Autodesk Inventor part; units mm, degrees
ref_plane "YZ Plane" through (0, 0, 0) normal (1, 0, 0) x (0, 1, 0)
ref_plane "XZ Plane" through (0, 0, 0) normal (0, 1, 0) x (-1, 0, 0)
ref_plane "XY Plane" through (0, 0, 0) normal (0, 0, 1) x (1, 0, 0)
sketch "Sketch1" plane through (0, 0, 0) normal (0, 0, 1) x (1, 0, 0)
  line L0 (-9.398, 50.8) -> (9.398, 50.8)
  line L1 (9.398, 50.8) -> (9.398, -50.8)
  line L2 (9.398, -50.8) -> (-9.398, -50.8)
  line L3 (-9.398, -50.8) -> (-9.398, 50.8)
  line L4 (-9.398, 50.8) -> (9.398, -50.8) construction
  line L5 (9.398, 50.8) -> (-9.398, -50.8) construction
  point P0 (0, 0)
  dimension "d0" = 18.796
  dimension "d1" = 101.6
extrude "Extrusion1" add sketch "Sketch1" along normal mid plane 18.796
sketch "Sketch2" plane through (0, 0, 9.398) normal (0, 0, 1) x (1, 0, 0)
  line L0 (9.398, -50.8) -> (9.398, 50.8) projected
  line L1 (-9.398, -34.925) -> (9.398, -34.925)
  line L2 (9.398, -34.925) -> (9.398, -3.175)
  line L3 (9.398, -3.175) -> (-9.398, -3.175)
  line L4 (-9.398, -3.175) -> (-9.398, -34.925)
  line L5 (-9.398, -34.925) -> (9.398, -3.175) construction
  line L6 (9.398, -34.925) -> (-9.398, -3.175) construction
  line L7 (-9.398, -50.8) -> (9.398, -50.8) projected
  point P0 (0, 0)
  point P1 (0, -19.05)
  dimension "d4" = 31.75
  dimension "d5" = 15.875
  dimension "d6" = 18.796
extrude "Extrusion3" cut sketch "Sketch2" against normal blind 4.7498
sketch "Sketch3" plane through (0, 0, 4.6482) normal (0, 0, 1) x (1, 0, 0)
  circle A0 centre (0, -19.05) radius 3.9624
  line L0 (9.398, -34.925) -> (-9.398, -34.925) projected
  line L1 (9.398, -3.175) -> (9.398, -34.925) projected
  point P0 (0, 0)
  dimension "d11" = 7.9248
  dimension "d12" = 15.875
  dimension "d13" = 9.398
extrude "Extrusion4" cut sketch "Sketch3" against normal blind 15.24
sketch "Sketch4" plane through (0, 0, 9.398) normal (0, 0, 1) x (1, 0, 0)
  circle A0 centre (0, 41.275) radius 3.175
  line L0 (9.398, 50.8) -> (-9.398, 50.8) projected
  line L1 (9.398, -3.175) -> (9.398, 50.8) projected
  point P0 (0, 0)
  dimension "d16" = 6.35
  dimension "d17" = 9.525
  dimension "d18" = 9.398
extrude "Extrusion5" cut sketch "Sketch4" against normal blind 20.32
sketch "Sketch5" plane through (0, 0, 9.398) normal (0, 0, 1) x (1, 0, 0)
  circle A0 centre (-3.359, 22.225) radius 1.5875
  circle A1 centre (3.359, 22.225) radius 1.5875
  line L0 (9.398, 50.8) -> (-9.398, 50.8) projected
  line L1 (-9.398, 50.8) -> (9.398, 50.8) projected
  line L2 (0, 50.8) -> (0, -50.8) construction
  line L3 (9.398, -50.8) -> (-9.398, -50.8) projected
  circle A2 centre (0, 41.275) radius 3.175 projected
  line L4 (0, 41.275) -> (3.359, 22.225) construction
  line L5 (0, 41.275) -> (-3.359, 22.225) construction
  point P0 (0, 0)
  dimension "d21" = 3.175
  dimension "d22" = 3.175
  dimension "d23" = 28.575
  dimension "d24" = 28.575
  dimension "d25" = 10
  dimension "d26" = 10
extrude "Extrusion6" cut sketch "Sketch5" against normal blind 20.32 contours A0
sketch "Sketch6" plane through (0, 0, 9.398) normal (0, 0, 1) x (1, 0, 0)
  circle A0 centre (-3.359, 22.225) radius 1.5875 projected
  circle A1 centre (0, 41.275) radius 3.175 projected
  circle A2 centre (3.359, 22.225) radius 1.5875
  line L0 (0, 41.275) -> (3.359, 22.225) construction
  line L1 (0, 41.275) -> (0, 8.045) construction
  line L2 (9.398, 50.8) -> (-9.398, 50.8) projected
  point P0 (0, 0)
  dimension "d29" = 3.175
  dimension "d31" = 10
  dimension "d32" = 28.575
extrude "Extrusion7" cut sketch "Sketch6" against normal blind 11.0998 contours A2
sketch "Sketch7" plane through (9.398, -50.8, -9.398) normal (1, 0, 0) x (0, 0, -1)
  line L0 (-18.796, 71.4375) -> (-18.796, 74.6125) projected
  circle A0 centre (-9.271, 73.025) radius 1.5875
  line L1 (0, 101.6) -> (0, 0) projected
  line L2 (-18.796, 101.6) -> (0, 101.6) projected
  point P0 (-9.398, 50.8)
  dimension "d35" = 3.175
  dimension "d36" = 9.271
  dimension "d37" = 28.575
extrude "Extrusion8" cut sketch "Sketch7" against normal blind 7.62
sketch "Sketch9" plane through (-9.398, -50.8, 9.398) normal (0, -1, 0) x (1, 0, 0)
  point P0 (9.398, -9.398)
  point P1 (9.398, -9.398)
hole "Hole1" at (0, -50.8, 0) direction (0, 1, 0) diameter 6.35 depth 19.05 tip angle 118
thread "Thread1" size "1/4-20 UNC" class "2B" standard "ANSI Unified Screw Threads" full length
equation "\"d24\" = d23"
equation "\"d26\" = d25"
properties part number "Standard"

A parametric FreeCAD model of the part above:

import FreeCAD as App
import Part
import Sketcher
from FreeCAD import Vector
Q = App.Units.Quantity

doc = App.newDocument("Part")
params = doc.addObject("Spreadsheet::Sheet", "Params")
for row, (alias, value) in enumerate([
    ("sketch1_height", "4 in"),
    ("sketch1_width", "0.74 in"),
    ("pad1_length", "0.74 in"),
    ("sketch2_width", "0.74 in"),
    ("sketch2_height", "1.25 in"),
    ("pocket1_length", "0.187 in"),
    ("sketch3_diameter", "0.312 in"),
    ("pocket2_length", "0.6 in"),
    ("sketch4_diameter", "0.25 in"),
    ("pocket3_length", "0.8 in"),
    ("sketch5_diameter", "0.125 in"),
    ("pocket4_length", "0.8 in"),
    ("sketch6_diameter", "0.125 in"),
    ("pocket5_length", "0.437 in"),
    ("sketch7_diameter", "0.125 in"),
    ("pocket6_length", "0.3 in"),
    ("sketch8_diameter", "0.25 in"),
    ("hole_diameter", "0.25 in"),
    ("hole_depth", "0.75 in"),
], start=1):
    params.set(f"A{row}", alias)
    params.set(f"B{row}", "=" + value)
    params.setAlias(f"B{row}", alias)

body = doc.addObject("PartDesign::Body", "Body")

sketch1 = doc.addObject("Sketcher::SketchObject", "Sketch")
body.addObject(sketch1)
sketch1.AttachmentSupport = (doc.XY_Plane, [""])
sketch1.MapMode = "FlatFace"
sketch1.addGeometry([
    Part.LineSegment(Vector(9, 51, 0), Vector(-9, 51, 0)),
    Part.LineSegment(Vector(-9, 51, 0), Vector(-9, -51, 0)),
    Part.LineSegment(Vector(-9, -51, 0), Vector(9, -51, 0)),
    Part.LineSegment(Vector(9, -51, 0), Vector(9, 51, 0)),
], False)
sketch1.addConstraint([
    Sketcher.Constraint("Coincident", 0, 2, 1, 1),
    Sketcher.Constraint("Coincident", 1, 2, 2, 1),
    Sketcher.Constraint("Coincident", 2, 2, 3, 1),
    Sketcher.Constraint("Coincident", 3, 2, 0, 1),
    Sketcher.Constraint("Horizontal", 0),
    Sketcher.Constraint("Vertical", 1),
    Sketcher.Constraint("Horizontal", 2),
    Sketcher.Constraint("Vertical", 3),
    Sketcher.Constraint("Symmetric", 0, 2, 2, 2, -1, 1),
    Sketcher.Constraint("DistanceY", 1, 2, 1, 1, Q("4 in")),
    Sketcher.Constraint("DistanceX", 0, 2, 0, 1, Q("0.74 in")),
])
sketch1.setExpression("Constraints[9]", "Params.sketch1_height")
sketch1.setExpression("Constraints[10]", "Params.sketch1_width")
pad1 = doc.addObject("PartDesign::Pad", "Pad")
body.addObject(pad1)
pad1.Profile = sketch1
pad1.setExpression("Length", "Params.pad1_length")
pad1.Midplane = True

sketch2 = doc.addObject("Sketcher::SketchObject", "Sketch001")
body.addObject(sketch2)
sketch2.AttachmentSupport = (doc.XY_Plane, [""])
sketch2.MapMode = "FlatFace"
sketch2.AttachmentOffset = App.Placement(Vector(0, 0, 0.37 * 25.4), App.Rotation())
sketch2.addGeometry([
    Part.LineSegment(Vector(-9, -35, 0), Vector(9, -35, 0)),
    Part.LineSegment(Vector(9, -35, 0), Vector(9, -3, 0)),
    Part.LineSegment(Vector(9, -3, 0), Vector(-9, -3, 0)),
    Part.LineSegment(Vector(-9, -3, 0), Vector(-9, -35, 0)),
], False)
sketch2.addConstraint([
    Sketcher.Constraint("Coincident", 0, 2, 1, 1),
    Sketcher.Constraint("Coincident", 1, 2, 2, 1),
    Sketcher.Constraint("Coincident", 2, 2, 3, 1),
    Sketcher.Constraint("Coincident", 3, 2, 0, 1),
    Sketcher.Constraint("Horizontal", 0),
    Sketcher.Constraint("Vertical", 1),
    Sketcher.Constraint("Horizontal", 2),
    Sketcher.Constraint("Vertical", 3),
    Sketcher.Constraint("DistanceX", 0, 1, 0, 2, Q("0.74 in")),
    Sketcher.Constraint("DistanceY", 1, 1, 1, 2, Q("1.25 in")),
    Sketcher.Constraint("DistanceX", -1, 1, 0, 2, Q("0.37 in")),
    Sketcher.Constraint("DistanceY", 0, 2, -1, 1, Q("1.375 in")),
])
sketch2.setExpression("Constraints[8]", "Params.sketch2_width")
sketch2.setExpression("Constraints[9]", "Params.sketch2_height")
pocket1 = doc.addObject("PartDesign::Pocket", "Pocket")
body.addObject(pocket1)
pocket1.Profile = sketch2
pocket1.setExpression("Length", "Params.pocket1_length")

sketch3 = doc.addObject("Sketcher::SketchObject", "Sketch002")
body.addObject(sketch3)
sketch3.AttachmentSupport = (doc.XY_Plane, [""])
sketch3.MapMode = "FlatFace"
sketch3.AttachmentOffset = App.Placement(Vector(0, 0, 0.183 * 25.4), App.Rotation())
sketch3.addGeometry(Part.Circle(Vector(0, -19.1, 0), Vector(0, 0, 1), 4), False)
sketch3.addConstraint([
    Sketcher.Constraint("PointOnObject", 0, 3, -2),
    Sketcher.Constraint("Diameter", 0, Q("0.312 in")),
    Sketcher.Constraint("DistanceY", 0, 3, -1, 1, Q("0.75 in")),
])
sketch3.setExpression("Constraints[1]", "Params.sketch3_diameter")
pocket2 = doc.addObject("PartDesign::Pocket", "Pocket001")
body.addObject(pocket2)
pocket2.Profile = sketch3
pocket2.setExpression("Length", "Params.pocket2_length")

sketch4 = doc.addObject("Sketcher::SketchObject", "Sketch003")
body.addObject(sketch4)
sketch4.AttachmentSupport = (doc.XY_Plane, [""])
sketch4.MapMode = "FlatFace"
sketch4.AttachmentOffset = App.Placement(Vector(0, 0, 0.37 * 25.4), App.Rotation())
sketch4.addGeometry(Part.Circle(Vector(0, 41.3, 0), Vector(0, 0, 1), 3.2), False)
sketch4.addConstraint([
    Sketcher.Constraint("PointOnObject", 0, 3, -2),
    Sketcher.Constraint("Diameter", 0, Q("0.25 in")),
    Sketcher.Constraint("DistanceY", -1, 1, 0, 3, Q("1.625 in")),
])
sketch4.setExpression("Constraints[1]", "Params.sketch4_diameter")
pocket3 = doc.addObject("PartDesign::Pocket", "Pocket002")
body.addObject(pocket3)
pocket3.Profile = sketch4
pocket3.setExpression("Length", "Params.pocket3_length")

sketch5 = doc.addObject("Sketcher::SketchObject", "Sketch004")
body.addObject(sketch5)
sketch5.AttachmentSupport = (doc.XY_Plane, [""])
sketch5.MapMode = "FlatFace"
sketch5.AttachmentOffset = App.Placement(Vector(0, 0, 0.37 * 25.4), App.Rotation())
sketch5.addGeometry(Part.Circle(Vector(-3.4, 22.2, 0), Vector(0, 0, 1), 1.6), False)
sketch5.addConstraint([
    Sketcher.Constraint("Diameter", 0, Q("0.125 in")),
    Sketcher.Constraint("DistanceY", -1, 1, 0, 3, Q("0.875 in")),
    Sketcher.Constraint("DistanceX", 0, 3, -1, 1, Q("3.359 mm")),
])
sketch5.setExpression("Constraints[0]", "Params.sketch5_diameter")
pocket4 = doc.addObject("PartDesign::Pocket", "Pocket003")
body.addObject(pocket4)
pocket4.Profile = sketch5
pocket4.setExpression("Length", "Params.pocket4_length")

sketch6 = doc.addObject("Sketcher::SketchObject", "Sketch005")
body.addObject(sketch6)
sketch6.AttachmentSupport = (doc.XY_Plane, [""])
sketch6.MapMode = "FlatFace"
sketch6.AttachmentOffset = App.Placement(Vector(0, 0, 0.37 * 25.4), App.Rotation())
sketch6.addGeometry(Part.Circle(Vector(3.4, 22.2, 0), Vector(0, 0, 1), 1.6), False)
sketch6.addConstraint([
    Sketcher.Constraint("Diameter", 0, Q("0.125 in")),
    Sketcher.Constraint("DistanceY", -1, 1, 0, 3, Q("0.875 in")),
    Sketcher.Constraint("DistanceX", -1, 1, 0, 3, Q("3.359 mm")),
])
sketch6.setExpression("Constraints[0]", "Params.sketch6_diameter")
pocket5 = doc.addObject("PartDesign::Pocket", "Pocket004")
body.addObject(pocket5)
pocket5.Profile = sketch6
pocket5.setExpression("Length", "Params.pocket5_length")

sketch7 = doc.addObject("Sketcher::SketchObject", "Sketch006")
body.addObject(sketch7)
sketch7.AttachmentSupport = (doc.YZ_Plane, [""])
sketch7.MapMode = "FlatFace"
sketch7.AttachmentOffset = App.Placement(Vector(0, 0, 0.37 * 25.4), App.Rotation())
sketch7.addGeometry(Part.Circle(Vector(22.2, -0.1, 0), Vector(0, 0, 1), 1.6), False)
sketch7.addConstraint([
    Sketcher.Constraint("Diameter", 0, Q("0.125 in")),
    Sketcher.Constraint("DistanceX", -1, 1, 0, 3, Q("0.875 in")),
    Sketcher.Constraint("DistanceY", 0, 3, -1, 1, Q("0.005 in")),
])
sketch7.setExpression("Constraints[0]", "Params.sketch7_diameter")
pocket6 = doc.addObject("PartDesign::Pocket", "Pocket005")
body.addObject(pocket6)
pocket6.Profile = sketch7
pocket6.setExpression("Length", "Params.pocket6_length")

sketch8 = doc.addObject("Sketcher::SketchObject", "Sketch007")
body.addObject(sketch8)
sketch8.AttachmentSupport = (doc.XZ_Plane, [""])
sketch8.MapMode = "FlatFace"
sketch8.AttachmentOffset = App.Placement(Vector(0, 0, 2 * 25.4), App.Rotation())
sketch8.addGeometry(Part.Circle(Vector(0, 0, 0), Vector(0, 0, 1), 3.2), False)
sketch8.addConstraint([
    Sketcher.Constraint("Coincident", 0, 3, -1, 1),
    Sketcher.Constraint("Diameter", 0, Q("0.25 in")),
])
sketch8.setExpression("Constraints[1]", "Params.sketch8_diameter")
doc.recompute()
hole = doc.addObject("PartDesign::Hole", "Hole")
body.addObject(hole)
hole.Profile = sketch8
hole.ThreadType = "None"
hole.setExpression("Diameter", "Params.hole_diameter")
hole.DepthType = "Dimension"
hole.setExpression("Depth", "Params.hole_depth")
hole.DrillPoint = "Angled"
hole.DrillPointAngle = 118

doc.recompute()
